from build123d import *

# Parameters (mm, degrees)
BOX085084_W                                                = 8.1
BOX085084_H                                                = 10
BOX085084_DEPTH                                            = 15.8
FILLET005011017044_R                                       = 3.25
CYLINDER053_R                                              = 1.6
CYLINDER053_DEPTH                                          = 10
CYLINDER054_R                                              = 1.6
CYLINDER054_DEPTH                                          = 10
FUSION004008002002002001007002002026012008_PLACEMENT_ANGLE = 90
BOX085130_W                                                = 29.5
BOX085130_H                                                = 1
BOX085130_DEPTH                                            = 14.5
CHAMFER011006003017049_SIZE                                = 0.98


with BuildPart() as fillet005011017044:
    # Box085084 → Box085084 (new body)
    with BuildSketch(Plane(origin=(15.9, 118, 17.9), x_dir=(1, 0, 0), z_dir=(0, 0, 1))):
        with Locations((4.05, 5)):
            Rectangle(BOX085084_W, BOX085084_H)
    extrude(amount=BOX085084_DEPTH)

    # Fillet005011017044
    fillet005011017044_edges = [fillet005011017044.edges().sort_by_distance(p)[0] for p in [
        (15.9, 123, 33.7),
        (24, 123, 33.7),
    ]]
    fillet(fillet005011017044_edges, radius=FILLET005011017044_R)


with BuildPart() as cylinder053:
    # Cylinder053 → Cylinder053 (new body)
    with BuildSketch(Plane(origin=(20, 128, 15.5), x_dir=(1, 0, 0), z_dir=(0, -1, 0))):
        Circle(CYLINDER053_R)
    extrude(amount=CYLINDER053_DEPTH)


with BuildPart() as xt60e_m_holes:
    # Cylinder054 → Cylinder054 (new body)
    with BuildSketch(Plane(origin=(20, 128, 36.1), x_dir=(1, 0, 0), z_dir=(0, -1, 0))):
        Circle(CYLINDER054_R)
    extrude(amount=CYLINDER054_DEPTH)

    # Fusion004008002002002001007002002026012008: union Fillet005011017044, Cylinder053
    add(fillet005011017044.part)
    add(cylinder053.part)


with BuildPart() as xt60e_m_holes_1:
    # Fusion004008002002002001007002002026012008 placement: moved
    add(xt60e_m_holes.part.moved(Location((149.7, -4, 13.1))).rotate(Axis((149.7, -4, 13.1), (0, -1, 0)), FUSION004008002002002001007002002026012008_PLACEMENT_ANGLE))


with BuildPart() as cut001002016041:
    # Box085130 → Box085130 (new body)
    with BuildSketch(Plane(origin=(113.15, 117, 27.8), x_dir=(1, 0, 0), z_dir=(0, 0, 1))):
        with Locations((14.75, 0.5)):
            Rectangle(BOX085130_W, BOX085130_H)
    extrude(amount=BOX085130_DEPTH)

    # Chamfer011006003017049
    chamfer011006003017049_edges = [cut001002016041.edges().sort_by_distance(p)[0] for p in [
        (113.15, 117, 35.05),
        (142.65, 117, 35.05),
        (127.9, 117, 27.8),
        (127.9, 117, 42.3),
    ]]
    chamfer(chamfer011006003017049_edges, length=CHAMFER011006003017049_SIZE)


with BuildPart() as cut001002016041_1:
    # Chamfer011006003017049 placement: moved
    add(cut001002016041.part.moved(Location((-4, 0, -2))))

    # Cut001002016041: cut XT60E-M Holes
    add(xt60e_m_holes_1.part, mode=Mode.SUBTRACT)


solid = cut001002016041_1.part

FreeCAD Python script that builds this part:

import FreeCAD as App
import Part
import Sketcher

V = App.Vector


def edges_at(feature, points):
    """Names of the edges that pass closest to the given points."""
    edges = feature.Shape.Edges
    near = lambda p: min(range(len(edges)), key=lambda i: edges[i].distToShape(Part.Vertex(*p))[0])
    return sorted({f"Edge{near(p) + 1}" for p in points})


def add_polygon(sketch, points):
    """Adds a closed chain of lines whose ends are joined by coincident constraints."""
    first, n = sketch.GeometryCount, len(points)
    for a, b in zip(points, points[1:] + points[:1]):
        sketch.addGeometry(Part.LineSegment(App.Vector(*a, 0), App.Vector(*b, 0)), False)
    for i in range(n):
        sketch.addConstraint(Sketcher.Constraint("Coincident", first + i, 2, first + (i + 1) % n, 1))

doc = App.newDocument("Part")
body = doc.addObject("PartDesign::Body", "Body")

sketch1 = body.newObject("Sketcher::SketchObject", "Sketch")
sketch1.AttachmentSupport = (doc.getObject("XY_Plane"), [""])
sketch1.MapMode = "FlatFace"
sketch1.AttachmentOffset = App.Placement(V(0, 0, 17.9), App.Rotation())
add_polygon(sketch1, [(16, 128), (16, 118), (24, 118), (24, 128)])
sketch1.addConstraint([
    Sketcher.Constraint("Vertical", 0),
    Sketcher.Constraint("Horizontal", 1),
    Sketcher.Constraint("Vertical", 2),
    Sketcher.Constraint("Horizontal", 3),
    Sketcher.Constraint("DistanceY", 0, 2, 0, 1, 10.0),
    Sketcher.Constraint("DistanceX", 1, 1, 1, 2, 8.1),
    Sketcher.Constraint("DistanceY", -1, 1, 0, 2, 118.0),
    Sketcher.Constraint("DistanceX", -1, 1, 1, 2, 24.0),
])
pad1 = body.newObject("PartDesign::Pad", "Pad")
pad1.Profile = sketch1
pad1.Length = 15.8
doc.recompute()

fillet = body.newObject("PartDesign::Fillet", "Fillet")
fillet.Base = (pad1, edges_at(pad1, [(15.9, 123, 33.7), (24, 123, 33.7)]))
fillet.Radius = 3.25
body2 = doc.addObject("PartDesign::Body", "Body001")

sketch2 = body2.newObject("Sketcher::SketchObject", "Sketch001")
sketch2.AttachmentSupport = (doc.getObject("XZ_Plane001"), [""])
sketch2.MapMode = "FlatFace"
sketch2.AttachmentOffset = App.Placement(V(0, 0, -128), App.Rotation())
sketch2.addGeometry(Part.Circle(V(20, 15.5, 0), V(0, 0, 1), 1.6), False)
sketch2.addConstraint([
    Sketcher.Constraint("Diameter", 0, 3.2),
    Sketcher.Constraint("DistanceX", -1, 1, 0, 3, 20.0),
    Sketcher.Constraint("DistanceY", -1, 1, 0, 3, 15.5),
])
pad2 = body2.newObject("PartDesign::Pad", "Pad001")
pad2.Profile = sketch2
pad2.Length = 10
body3 = doc.addObject("PartDesign::Body", "Body002")
body3.AllowCompound = True

sketch3 = body3.newObject("Sketcher::SketchObject", "Sketch002")
sketch3.AttachmentSupport = (doc.getObject("XZ_Plane002"), [""])
sketch3.MapMode = "FlatFace"
sketch3.AttachmentOffset = App.Placement(V(0, 0, -128), App.Rotation())
sketch3.addGeometry(Part.Circle(V(20, 36.1, 0), V(0, 0, 1), 1.6), False)
sketch3.addConstraint([
    Sketcher.Constraint("Diameter", 0, 3.2),
    Sketcher.Constraint("DistanceX", -1, 1, 0, 3, 20.0),
    Sketcher.Constraint("DistanceY", -1, 1, 0, 3, 36.1),
])
pad3 = body3.newObject("PartDesign::Pad", "Pad002")
pad3.Profile = sketch3
pad3.Length = 10
doc.recompute()

boolean = body3.newObject("PartDesign::Boolean", "Boolean")
boolean.Type = "Fuse"
boolean.addObjects([body])
doc.recompute()

boolean2 = body3.newObject("PartDesign::Boolean", "Boolean001")
boolean2.Type = "Fuse"
boolean2.addObjects([body2])
body4 = doc.addObject("PartDesign::Body", "Body003")
body4.AllowCompound = True
doc.recompute()

body3.Placement = App.Placement(V(149.7, -4, 13.1), App.Rotation(V(0, -1, 0), 90))
boolean3 = body4.newObject("PartDesign::Boolean", "Boolean002")
boolean3.Type = "Fuse"
boolean3.addObjects([body3])
body5 = doc.addObject("PartDesign::Body", "Body004")

sketch4 = body5.newObject("Sketcher::SketchObject", "Sketch003")
sketch4.AttachmentSupport = (doc.getObject("XY_Plane004"), [""])
sketch4.MapMode = "FlatFace"
sketch4.AttachmentOffset = App.Placement(V(0, 0, 27.8), App.Rotation())
add_polygon(sketch4, [(113.2, 118), (113.2, 117), (142.7, 117), (142.7, 118)])
sketch4.addConstraint([
    Sketcher.Constraint("Vertical", 0),
    Sketcher.Constraint("Horizontal", 1),
    Sketcher.Constraint("Vertical", 2),
    Sketcher.Constraint("Horizontal", 3),
    Sketcher.Constraint("DistanceY", 0, 2, 0, 1, 1.0),
    Sketcher.Constraint("DistanceX", 1, 1, 1, 2, 29.5),
    Sketcher.Constraint("DistanceY", -1, 1, 0, 2, 117.0),
    Sketcher.Constraint("DistanceX", -1, 1, 0, 2, 113.15),
])
pad4 = body5.newObject("PartDesign::Pad", "Pad003")
pad4.Profile = sketch4
pad4.Length = 14.5
doc.recompute()

chamfer = body5.newObject("PartDesign::Chamfer", "Chamfer")
chamfer.Base = (pad4, edges_at(pad4, [
    (113.15, 117, 35.05),
    (142.65, 117, 35.05),
    (127.9, 117, 27.8),
    (127.9, 117, 42.3),
]))
chamfer.Size = 0.98
body6 = doc.addObject("PartDesign::Body", "Body005")
doc.recompute()

body5.Placement = App.Placement(V(-4, 0, -2), App.Rotation(V(0, 0, 1), 0))
boolean4 = body6.newObject("PartDesign::Boolean", "Boolean003")
boolean4.Type = "Fuse"
boolean4.addObjects([body5])
doc.recompute()

boolean5 = body6.newObject("PartDesign::Boolean", "Boolean004")
boolean5.Type = "Cut"
boolean5.addObjects([body4])

doc.recompute()
